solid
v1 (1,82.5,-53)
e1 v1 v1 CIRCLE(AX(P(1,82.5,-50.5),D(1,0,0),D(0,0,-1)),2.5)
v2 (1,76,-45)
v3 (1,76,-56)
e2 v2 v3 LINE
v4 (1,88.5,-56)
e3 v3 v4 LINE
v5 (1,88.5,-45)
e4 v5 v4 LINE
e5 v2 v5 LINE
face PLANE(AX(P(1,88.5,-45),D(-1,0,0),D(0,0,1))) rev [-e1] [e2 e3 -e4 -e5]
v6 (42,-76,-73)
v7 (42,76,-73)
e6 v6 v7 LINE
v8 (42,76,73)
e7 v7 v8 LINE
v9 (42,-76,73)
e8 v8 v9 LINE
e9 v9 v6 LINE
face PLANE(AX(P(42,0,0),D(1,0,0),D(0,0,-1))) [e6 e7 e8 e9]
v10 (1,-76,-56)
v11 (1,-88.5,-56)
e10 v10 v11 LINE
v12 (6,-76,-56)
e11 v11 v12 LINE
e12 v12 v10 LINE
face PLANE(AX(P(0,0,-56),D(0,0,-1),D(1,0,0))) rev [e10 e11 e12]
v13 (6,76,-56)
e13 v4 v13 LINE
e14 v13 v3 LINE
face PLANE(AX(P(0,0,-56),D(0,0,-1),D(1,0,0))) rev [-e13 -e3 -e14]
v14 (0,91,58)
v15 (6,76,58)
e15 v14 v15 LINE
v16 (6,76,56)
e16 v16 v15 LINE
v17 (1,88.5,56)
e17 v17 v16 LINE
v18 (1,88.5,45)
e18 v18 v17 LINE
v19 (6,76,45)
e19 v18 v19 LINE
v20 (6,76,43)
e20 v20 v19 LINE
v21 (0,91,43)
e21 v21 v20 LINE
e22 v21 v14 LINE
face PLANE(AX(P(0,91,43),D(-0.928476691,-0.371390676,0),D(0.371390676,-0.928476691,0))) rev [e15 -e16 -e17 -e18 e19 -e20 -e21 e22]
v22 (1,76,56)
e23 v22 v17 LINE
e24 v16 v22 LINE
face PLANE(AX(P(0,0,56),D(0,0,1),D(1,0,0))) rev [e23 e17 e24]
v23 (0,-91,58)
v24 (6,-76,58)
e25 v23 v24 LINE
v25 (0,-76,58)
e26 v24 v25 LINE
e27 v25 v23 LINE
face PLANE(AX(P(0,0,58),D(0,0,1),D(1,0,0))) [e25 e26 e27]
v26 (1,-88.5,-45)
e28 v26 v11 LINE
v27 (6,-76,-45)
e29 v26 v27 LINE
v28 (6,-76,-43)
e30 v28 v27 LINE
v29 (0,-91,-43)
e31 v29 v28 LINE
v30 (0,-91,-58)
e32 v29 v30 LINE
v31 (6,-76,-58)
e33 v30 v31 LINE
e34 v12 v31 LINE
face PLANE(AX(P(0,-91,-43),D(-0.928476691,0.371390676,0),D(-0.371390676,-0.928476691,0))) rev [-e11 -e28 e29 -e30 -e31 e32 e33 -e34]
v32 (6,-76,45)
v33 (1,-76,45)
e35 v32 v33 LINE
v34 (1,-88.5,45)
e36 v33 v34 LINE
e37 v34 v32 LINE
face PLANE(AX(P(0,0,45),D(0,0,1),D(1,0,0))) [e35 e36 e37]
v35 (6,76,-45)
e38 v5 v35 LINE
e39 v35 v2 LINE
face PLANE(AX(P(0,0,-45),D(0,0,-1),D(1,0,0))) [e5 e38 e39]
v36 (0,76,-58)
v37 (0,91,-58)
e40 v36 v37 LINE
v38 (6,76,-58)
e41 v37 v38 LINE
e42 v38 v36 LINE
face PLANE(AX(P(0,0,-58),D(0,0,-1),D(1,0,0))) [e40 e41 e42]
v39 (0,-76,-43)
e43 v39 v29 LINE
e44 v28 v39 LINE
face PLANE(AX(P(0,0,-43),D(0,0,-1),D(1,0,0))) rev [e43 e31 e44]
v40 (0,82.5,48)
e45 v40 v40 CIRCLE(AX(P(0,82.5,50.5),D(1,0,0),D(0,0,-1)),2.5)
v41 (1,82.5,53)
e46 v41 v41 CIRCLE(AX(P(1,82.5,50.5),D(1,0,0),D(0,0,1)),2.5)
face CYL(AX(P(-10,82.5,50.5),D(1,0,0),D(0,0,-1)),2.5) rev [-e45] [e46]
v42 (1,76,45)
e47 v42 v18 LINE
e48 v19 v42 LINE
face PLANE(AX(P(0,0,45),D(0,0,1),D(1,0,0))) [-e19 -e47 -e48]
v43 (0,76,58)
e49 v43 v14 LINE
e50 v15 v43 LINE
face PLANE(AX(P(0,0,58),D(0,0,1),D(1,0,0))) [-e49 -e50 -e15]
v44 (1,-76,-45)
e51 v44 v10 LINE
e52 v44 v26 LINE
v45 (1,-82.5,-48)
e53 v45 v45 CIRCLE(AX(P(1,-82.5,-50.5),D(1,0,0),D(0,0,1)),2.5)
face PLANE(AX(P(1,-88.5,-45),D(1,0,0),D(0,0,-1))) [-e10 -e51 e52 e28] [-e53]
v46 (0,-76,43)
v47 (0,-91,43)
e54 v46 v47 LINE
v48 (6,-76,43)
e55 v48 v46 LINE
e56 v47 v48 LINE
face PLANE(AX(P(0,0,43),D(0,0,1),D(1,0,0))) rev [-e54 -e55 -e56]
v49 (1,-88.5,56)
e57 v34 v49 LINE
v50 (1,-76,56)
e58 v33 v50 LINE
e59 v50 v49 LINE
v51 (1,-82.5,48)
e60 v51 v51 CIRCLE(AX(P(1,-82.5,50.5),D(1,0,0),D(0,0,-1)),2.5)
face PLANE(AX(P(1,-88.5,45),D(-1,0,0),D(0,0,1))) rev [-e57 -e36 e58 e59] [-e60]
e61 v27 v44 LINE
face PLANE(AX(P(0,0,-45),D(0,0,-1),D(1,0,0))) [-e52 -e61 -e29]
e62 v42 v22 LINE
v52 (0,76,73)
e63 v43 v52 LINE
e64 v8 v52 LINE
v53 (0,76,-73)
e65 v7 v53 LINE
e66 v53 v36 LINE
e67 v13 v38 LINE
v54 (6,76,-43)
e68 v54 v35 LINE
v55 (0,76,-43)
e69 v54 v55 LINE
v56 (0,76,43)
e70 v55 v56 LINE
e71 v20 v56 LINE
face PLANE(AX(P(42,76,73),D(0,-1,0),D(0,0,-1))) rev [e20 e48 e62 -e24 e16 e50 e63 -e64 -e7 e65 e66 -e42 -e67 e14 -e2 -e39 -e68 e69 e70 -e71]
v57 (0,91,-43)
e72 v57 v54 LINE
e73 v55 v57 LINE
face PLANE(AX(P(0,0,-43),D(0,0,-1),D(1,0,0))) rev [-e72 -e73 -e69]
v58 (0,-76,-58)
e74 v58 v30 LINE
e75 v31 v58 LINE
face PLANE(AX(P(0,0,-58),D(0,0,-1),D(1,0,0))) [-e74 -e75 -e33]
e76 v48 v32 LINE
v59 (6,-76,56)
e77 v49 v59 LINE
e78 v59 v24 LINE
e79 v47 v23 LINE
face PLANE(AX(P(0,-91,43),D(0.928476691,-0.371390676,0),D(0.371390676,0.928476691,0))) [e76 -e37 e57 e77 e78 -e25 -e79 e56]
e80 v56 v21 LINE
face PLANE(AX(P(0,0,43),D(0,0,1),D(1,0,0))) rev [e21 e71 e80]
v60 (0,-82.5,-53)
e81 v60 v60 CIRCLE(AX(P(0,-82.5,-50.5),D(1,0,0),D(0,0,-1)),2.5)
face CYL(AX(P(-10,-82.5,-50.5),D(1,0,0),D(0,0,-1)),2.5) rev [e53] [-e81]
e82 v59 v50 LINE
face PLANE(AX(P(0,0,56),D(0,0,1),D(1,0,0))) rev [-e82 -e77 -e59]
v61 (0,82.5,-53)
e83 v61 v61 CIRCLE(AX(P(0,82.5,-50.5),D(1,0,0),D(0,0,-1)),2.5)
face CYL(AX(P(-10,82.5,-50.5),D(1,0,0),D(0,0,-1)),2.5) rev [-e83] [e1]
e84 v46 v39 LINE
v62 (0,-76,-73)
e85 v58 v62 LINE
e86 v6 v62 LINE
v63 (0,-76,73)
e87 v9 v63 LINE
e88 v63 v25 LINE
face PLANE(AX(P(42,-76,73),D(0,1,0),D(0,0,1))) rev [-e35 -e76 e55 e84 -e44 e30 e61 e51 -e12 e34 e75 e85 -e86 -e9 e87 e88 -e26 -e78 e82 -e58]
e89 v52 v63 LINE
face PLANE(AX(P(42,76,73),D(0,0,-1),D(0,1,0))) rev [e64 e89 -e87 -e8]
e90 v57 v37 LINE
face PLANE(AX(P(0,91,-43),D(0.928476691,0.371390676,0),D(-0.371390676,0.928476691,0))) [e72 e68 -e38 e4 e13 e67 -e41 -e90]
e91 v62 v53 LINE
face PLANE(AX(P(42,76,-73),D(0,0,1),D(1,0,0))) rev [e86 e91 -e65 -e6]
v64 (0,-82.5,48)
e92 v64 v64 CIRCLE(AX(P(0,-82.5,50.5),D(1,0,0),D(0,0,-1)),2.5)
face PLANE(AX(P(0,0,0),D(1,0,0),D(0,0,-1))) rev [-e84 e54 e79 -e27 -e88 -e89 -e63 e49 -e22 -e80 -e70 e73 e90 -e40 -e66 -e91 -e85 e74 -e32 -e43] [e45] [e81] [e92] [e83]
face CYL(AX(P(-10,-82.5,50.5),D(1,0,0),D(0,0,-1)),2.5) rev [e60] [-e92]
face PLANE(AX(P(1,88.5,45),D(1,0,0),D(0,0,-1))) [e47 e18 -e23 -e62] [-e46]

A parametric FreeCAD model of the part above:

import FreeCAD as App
import Part
import Sketcher
Q = App.Units.Quantity

doc = App.newDocument("Part")
body = doc.addObject("PartDesign::Body", "Body")

# Sketch on YZ plane
sketch1 = doc.addObject("Sketcher::SketchObject", "Sketch")
body.addObject(sketch1)
sketch1.AttachmentSupport = (doc.YZ_Plane, [""])
sketch1.MapMode = "FlatFace"
sketch1.addGeometry([
    Part.LineSegment(App.Vector(76, 73, 0), App.Vector(-76, 73, 0)),
    Part.LineSegment(App.Vector(-76, 73, 0), App.Vector(-76, -73, 0)),
    Part.LineSegment(App.Vector(-76, -73, 0), App.Vector(76, -73, 0)),
    Part.LineSegment(App.Vector(76, -73, 0), App.Vector(76, 73, 0)),
], False)
sketch1.addConstraint([
    Sketcher.Constraint("Coincident", 0, 2, 1, 1),
    Sketcher.Constraint("Coincident", 1, 2, 2, 1),
    Sketcher.Constraint("Coincident", 2, 2, 3, 1),
    Sketcher.Constraint("Coincident", 3, 2, 0, 1),
    Sketcher.Constraint("Horizontal", 0),
    Sketcher.Constraint("Vertical", 1),
    Sketcher.Constraint("Horizontal", 2),
    Sketcher.Constraint("Vertical", 3),
    Sketcher.Constraint("Symmetric", 0, 2, 2, 2, -1, 1),
    Sketcher.Constraint("DistanceX", 0, 2, 0, 1, Q("152 mm")),
    Sketcher.Constraint("DistanceY", 1, 2, 1, 1, Q("146 mm")),
])
pad1 = doc.addObject("PartDesign::Pad", "Pad")
body.addObject(pad1)
pad1.Profile = sketch1
pad1.Length = 42

# Sketch on XY plane
sketch2 = doc.addObject("Sketcher::SketchObject", "Sketch001")
body.addObject(sketch2)
sketch2.AttachmentSupport = (doc.XY_Plane, [""])
sketch2.MapMode = "FlatFace"
sketch2.AttachmentOffset = App.Placement(App.Vector(0, 0, 58), App.Rotation())
sketch2.addGeometry([
    Part.LineSegment(App.Vector(0, -76, 0), App.Vector(0, -91, 0)),
    Part.LineSegment(App.Vector(0, -91, 0), App.Vector(6, -76, 0)),
    Part.LineSegment(App.Vector(6, -76, 0), App.Vector(0, -76, 0)),
], False)
sketch2.addConstraint([
    Sketcher.Constraint("Coincident", 0, 2, 1, 1),
    Sketcher.Constraint("Coincident", 1, 2, 2, 1),
    Sketcher.Constraint("Coincident", 2, 2, 0, 1),
    Sketcher.Constraint("Vertical", 0),
    Sketcher.Constraint("Horizontal", 2),
    Sketcher.Constraint("PointOnObject", 0, 2, -2),
    Sketcher.Constraint("DistanceX", 2, 2, 2, 1, Q("6 mm")),
    Sketcher.Constraint("DistanceY", 0, 2, 0, 1, Q("15 mm")),
    Sketcher.Constraint("DistanceY", 0, 2, -1, 1, Q("91 mm")),
])
pad2 = doc.addObject("PartDesign::Pad", "Pad001")
body.addObject(pad2)
pad2.Profile = sketch2
pad2.Length = 15
pad2.Reversed = True
doc.recompute()

mirrored = doc.addObject("PartDesign::Mirrored", "Mirrored")
body.addObject(mirrored)
mirrored.Originals = [pad2]
mirrored.MirrorPlane = (doc.XZ_Plane, [""])
body.Tip = mirrored
doc.recompute()

mirrored2 = doc.addObject("PartDesign::Mirrored", "Mirrored001")
body.addObject(mirrored2)
mirrored2.Originals = [pad2]
mirrored2.MirrorPlane = (doc.XY_Plane, [""])
body.Tip = mirrored2

# Sketch on XY plane
sketch3 = doc.addObject("Sketcher::SketchObject", "Sketch002")
body.addObject(sketch3)
sketch3.AttachmentSupport = (doc.XY_Plane, [""])
sketch3.MapMode = "FlatFace"
sketch3.AttachmentOffset = App.Placement(App.Vector(0, 0, -58), App.Rotation())
sketch3.addGeometry([
    Part.LineSegment(App.Vector(0, 76, 0), App.Vector(0, 91, 0)),
    Part.LineSegment(App.Vector(0, 91, 0), App.Vector(6, 76, 0)),
    Part.LineSegment(App.Vector(6, 76, 0), App.Vector(0, 76, 0)),
], False)
sketch3.addConstraint([
    Sketcher.Constraint("Coincident", 0, 2, 1, 1),
    Sketcher.Constraint("Coincident", 1, 2, 2, 1),
    Sketcher.Constraint("Coincident", 2, 2, 0, 1),
    Sketcher.Constraint("Vertical", 0),
    Sketcher.Constraint("Horizontal", 2),
    Sketcher.Constraint("PointOnObject", 0, 2, -2),
    Sketcher.Constraint("DistanceX", 2, 2, 2, 1, Q("6 mm")),
    Sketcher.Constraint("DistanceY", 0, 1, 0, 2, Q("15 mm")),
    Sketcher.Constraint("DistanceY", -1, 1, 0, 2, Q("91 mm")),
])
pad3 = doc.addObject("PartDesign::Pad", "Pad002")
body.addObject(pad3)
pad3.Profile = sketch3
pad3.Length = 15

# Sketch on XY plane
sketch4 = doc.addObject("Sketcher::SketchObject", "Sketch003")
body.addObject(sketch4)
sketch4.AttachmentSupport = (doc.XY_Plane, [""])
sketch4.MapMode = "FlatFace"
sketch4.AttachmentOffset = App.Placement(App.Vector(0, 0, 56), App.Rotation())
sketch4.addGeometry([
    Part.LineSegment(App.Vector(1, -88, 0), App.Vector(6, -76, 0)),
    Part.LineSegment(App.Vector(6, -76, 0), App.Vector(1, -76, 0)),
    Part.LineSegment(App.Vector(1, -76, 0), App.Vector(1, -88, 0)),
], False)
sketch4.addConstraint([
    Sketcher.Constraint("Coincident", 0, 2, 1, 1),
    Sketcher.Constraint("Coincident", 1, 2, 2, 1),
    Sketcher.Constraint("Coincident", 2, 2, 0, 1),
    Sketcher.Constraint("Horizontal", 1),
    Sketcher.Constraint("Vertical", 2),
    Sketcher.Constraint("DistanceX", 1, 2, 1, 1, Q("5 mm")),
    Sketcher.Constraint("DistanceY", 2, 2, 2, 1, Q("12.5 mm")),
    Sketcher.Constraint("DistanceX", -1, 1, 0, 2, Q("6 mm")),
    Sketcher.Constraint("DistanceY", 0, 2, -1, 1, Q("76 mm")),
])
pocket1 = doc.addObject("PartDesign::Pocket", "Pocket")
body.addObject(pocket1)
pocket1.Profile = sketch4
pocket1.Length = 11
doc.recompute()

mirrored3 = doc.addObject("PartDesign::Mirrored", "Mirrored002")
body.addObject(mirrored3)
mirrored3.Originals = [pocket1]
mirrored3.MirrorPlane = (doc.XY_Plane, [""])
body.Tip = mirrored3
doc.recompute()

mirrored4 = doc.addObject("PartDesign::Mirrored", "Mirrored003")
body.addObject(mirrored4)
mirrored4.Originals = [pocket1]
mirrored4.MirrorPlane = (doc.XZ_Plane, [""])
body.Tip = mirrored4

# Sketch on XY plane
sketch5 = doc.addObject("Sketcher::SketchObject", "Sketch004")
body.addObject(sketch5)
sketch5.AttachmentSupport = (doc.XY_Plane, [""])
sketch5.MapMode = "FlatFace"
sketch5.AttachmentOffset = App.Placement(App.Vector(0, 0, -56), App.Rotation())
sketch5.addGeometry([
    Part.LineSegment(App.Vector(1, 88, 0), App.Vector(6, 76, 0)),
    Part.LineSegment(App.Vector(6, 76, 0), App.Vector(1, 76, 0)),
    Part.LineSegment(App.Vector(1, 76, 0), App.Vector(1, 88, 0)),
], False)
sketch5.addConstraint([
    Sketcher.Constraint("Coincident", 0, 2, 1, 1),
    Sketcher.Constraint("Coincident", 1, 2, 2, 1),
    Sketcher.Constraint("Coincident", 2, 2, 0, 1),
    Sketcher.Constraint("Horizontal", 1),
    Sketcher.Constraint("Vertical", 2),
    Sketcher.Constraint("DistanceX", 1, 2, 1, 1, Q("5 mm")),
    Sketcher.Constraint("DistanceY", 2, 1, 2, 2, Q("12.5 mm")),
    Sketcher.Constraint("DistanceX", -1, 1, 0, 2, Q("6 mm")),
    Sketcher.Constraint("DistanceY", -1, 1, 0, 2, Q("76 mm")),
])
pocket2 = doc.addObject("PartDesign::Pocket", "Pocket001")
body.addObject(pocket2)
pocket2.Profile = sketch5
pocket2.Length = 11
pocket2.Reversed = True

# Sketch on YZ plane
sketch6 = doc.addObject("Sketcher::SketchObject", "Sketch005")
body.addObject(sketch6)
sketch6.AttachmentSupport = (doc.YZ_Plane, [""])
sketch6.MapMode = "FlatFace"
sketch6.AttachmentOffset = App.Placement(App.Vector(0, 0, 1), App.Rotation())
sketch6.addGeometry([
    Part.Circle(App.Vector(-82.5, 50.5, 0), App.Vector(0, 0, 1), 2.5),
    Part.Circle(App.Vector(-82.5, -50.5, 0), App.Vector(0, 0, 1), 2.5),
    Part.Circle(App.Vector(82.5, 50.5, 0), App.Vector(0, 0, 1), 2.5),
    Part.Circle(App.Vector(82.5, -50.5, 0), App.Vector(0, 0, 1), 2.5),
], False)
sketch6.addConstraint([
    Sketcher.Constraint("Equal", 0, 1),
    Sketcher.Constraint("Equal", 1, 2),
    Sketcher.Constraint("Equal", 2, 3),
    Sketcher.Constraint("Symmetric", 1, 3, 2, 3, -1, 1),
    Sketcher.Constraint("Symmetric", 0, 3, 3, 3, -1, 1),
    Sketcher.Constraint("Symmetric", 0, 3, 2, 3, -2),
    Sketcher.Constraint("Diameter", 0, Q("5 mm")),
    Sketcher.Constraint("DistanceY", 1, 3, 0, 3, Q("101 mm")),
    Sketcher.Constraint("DistanceX", 0, 3, 2, 3, Q("165 mm")),
])
pocket3 = doc.addObject("PartDesign::Pocket", "Pocket002")
body.addObject(pocket3)
pocket3.Profile = sketch6
pocket3.Length = 11

doc.recompute()
